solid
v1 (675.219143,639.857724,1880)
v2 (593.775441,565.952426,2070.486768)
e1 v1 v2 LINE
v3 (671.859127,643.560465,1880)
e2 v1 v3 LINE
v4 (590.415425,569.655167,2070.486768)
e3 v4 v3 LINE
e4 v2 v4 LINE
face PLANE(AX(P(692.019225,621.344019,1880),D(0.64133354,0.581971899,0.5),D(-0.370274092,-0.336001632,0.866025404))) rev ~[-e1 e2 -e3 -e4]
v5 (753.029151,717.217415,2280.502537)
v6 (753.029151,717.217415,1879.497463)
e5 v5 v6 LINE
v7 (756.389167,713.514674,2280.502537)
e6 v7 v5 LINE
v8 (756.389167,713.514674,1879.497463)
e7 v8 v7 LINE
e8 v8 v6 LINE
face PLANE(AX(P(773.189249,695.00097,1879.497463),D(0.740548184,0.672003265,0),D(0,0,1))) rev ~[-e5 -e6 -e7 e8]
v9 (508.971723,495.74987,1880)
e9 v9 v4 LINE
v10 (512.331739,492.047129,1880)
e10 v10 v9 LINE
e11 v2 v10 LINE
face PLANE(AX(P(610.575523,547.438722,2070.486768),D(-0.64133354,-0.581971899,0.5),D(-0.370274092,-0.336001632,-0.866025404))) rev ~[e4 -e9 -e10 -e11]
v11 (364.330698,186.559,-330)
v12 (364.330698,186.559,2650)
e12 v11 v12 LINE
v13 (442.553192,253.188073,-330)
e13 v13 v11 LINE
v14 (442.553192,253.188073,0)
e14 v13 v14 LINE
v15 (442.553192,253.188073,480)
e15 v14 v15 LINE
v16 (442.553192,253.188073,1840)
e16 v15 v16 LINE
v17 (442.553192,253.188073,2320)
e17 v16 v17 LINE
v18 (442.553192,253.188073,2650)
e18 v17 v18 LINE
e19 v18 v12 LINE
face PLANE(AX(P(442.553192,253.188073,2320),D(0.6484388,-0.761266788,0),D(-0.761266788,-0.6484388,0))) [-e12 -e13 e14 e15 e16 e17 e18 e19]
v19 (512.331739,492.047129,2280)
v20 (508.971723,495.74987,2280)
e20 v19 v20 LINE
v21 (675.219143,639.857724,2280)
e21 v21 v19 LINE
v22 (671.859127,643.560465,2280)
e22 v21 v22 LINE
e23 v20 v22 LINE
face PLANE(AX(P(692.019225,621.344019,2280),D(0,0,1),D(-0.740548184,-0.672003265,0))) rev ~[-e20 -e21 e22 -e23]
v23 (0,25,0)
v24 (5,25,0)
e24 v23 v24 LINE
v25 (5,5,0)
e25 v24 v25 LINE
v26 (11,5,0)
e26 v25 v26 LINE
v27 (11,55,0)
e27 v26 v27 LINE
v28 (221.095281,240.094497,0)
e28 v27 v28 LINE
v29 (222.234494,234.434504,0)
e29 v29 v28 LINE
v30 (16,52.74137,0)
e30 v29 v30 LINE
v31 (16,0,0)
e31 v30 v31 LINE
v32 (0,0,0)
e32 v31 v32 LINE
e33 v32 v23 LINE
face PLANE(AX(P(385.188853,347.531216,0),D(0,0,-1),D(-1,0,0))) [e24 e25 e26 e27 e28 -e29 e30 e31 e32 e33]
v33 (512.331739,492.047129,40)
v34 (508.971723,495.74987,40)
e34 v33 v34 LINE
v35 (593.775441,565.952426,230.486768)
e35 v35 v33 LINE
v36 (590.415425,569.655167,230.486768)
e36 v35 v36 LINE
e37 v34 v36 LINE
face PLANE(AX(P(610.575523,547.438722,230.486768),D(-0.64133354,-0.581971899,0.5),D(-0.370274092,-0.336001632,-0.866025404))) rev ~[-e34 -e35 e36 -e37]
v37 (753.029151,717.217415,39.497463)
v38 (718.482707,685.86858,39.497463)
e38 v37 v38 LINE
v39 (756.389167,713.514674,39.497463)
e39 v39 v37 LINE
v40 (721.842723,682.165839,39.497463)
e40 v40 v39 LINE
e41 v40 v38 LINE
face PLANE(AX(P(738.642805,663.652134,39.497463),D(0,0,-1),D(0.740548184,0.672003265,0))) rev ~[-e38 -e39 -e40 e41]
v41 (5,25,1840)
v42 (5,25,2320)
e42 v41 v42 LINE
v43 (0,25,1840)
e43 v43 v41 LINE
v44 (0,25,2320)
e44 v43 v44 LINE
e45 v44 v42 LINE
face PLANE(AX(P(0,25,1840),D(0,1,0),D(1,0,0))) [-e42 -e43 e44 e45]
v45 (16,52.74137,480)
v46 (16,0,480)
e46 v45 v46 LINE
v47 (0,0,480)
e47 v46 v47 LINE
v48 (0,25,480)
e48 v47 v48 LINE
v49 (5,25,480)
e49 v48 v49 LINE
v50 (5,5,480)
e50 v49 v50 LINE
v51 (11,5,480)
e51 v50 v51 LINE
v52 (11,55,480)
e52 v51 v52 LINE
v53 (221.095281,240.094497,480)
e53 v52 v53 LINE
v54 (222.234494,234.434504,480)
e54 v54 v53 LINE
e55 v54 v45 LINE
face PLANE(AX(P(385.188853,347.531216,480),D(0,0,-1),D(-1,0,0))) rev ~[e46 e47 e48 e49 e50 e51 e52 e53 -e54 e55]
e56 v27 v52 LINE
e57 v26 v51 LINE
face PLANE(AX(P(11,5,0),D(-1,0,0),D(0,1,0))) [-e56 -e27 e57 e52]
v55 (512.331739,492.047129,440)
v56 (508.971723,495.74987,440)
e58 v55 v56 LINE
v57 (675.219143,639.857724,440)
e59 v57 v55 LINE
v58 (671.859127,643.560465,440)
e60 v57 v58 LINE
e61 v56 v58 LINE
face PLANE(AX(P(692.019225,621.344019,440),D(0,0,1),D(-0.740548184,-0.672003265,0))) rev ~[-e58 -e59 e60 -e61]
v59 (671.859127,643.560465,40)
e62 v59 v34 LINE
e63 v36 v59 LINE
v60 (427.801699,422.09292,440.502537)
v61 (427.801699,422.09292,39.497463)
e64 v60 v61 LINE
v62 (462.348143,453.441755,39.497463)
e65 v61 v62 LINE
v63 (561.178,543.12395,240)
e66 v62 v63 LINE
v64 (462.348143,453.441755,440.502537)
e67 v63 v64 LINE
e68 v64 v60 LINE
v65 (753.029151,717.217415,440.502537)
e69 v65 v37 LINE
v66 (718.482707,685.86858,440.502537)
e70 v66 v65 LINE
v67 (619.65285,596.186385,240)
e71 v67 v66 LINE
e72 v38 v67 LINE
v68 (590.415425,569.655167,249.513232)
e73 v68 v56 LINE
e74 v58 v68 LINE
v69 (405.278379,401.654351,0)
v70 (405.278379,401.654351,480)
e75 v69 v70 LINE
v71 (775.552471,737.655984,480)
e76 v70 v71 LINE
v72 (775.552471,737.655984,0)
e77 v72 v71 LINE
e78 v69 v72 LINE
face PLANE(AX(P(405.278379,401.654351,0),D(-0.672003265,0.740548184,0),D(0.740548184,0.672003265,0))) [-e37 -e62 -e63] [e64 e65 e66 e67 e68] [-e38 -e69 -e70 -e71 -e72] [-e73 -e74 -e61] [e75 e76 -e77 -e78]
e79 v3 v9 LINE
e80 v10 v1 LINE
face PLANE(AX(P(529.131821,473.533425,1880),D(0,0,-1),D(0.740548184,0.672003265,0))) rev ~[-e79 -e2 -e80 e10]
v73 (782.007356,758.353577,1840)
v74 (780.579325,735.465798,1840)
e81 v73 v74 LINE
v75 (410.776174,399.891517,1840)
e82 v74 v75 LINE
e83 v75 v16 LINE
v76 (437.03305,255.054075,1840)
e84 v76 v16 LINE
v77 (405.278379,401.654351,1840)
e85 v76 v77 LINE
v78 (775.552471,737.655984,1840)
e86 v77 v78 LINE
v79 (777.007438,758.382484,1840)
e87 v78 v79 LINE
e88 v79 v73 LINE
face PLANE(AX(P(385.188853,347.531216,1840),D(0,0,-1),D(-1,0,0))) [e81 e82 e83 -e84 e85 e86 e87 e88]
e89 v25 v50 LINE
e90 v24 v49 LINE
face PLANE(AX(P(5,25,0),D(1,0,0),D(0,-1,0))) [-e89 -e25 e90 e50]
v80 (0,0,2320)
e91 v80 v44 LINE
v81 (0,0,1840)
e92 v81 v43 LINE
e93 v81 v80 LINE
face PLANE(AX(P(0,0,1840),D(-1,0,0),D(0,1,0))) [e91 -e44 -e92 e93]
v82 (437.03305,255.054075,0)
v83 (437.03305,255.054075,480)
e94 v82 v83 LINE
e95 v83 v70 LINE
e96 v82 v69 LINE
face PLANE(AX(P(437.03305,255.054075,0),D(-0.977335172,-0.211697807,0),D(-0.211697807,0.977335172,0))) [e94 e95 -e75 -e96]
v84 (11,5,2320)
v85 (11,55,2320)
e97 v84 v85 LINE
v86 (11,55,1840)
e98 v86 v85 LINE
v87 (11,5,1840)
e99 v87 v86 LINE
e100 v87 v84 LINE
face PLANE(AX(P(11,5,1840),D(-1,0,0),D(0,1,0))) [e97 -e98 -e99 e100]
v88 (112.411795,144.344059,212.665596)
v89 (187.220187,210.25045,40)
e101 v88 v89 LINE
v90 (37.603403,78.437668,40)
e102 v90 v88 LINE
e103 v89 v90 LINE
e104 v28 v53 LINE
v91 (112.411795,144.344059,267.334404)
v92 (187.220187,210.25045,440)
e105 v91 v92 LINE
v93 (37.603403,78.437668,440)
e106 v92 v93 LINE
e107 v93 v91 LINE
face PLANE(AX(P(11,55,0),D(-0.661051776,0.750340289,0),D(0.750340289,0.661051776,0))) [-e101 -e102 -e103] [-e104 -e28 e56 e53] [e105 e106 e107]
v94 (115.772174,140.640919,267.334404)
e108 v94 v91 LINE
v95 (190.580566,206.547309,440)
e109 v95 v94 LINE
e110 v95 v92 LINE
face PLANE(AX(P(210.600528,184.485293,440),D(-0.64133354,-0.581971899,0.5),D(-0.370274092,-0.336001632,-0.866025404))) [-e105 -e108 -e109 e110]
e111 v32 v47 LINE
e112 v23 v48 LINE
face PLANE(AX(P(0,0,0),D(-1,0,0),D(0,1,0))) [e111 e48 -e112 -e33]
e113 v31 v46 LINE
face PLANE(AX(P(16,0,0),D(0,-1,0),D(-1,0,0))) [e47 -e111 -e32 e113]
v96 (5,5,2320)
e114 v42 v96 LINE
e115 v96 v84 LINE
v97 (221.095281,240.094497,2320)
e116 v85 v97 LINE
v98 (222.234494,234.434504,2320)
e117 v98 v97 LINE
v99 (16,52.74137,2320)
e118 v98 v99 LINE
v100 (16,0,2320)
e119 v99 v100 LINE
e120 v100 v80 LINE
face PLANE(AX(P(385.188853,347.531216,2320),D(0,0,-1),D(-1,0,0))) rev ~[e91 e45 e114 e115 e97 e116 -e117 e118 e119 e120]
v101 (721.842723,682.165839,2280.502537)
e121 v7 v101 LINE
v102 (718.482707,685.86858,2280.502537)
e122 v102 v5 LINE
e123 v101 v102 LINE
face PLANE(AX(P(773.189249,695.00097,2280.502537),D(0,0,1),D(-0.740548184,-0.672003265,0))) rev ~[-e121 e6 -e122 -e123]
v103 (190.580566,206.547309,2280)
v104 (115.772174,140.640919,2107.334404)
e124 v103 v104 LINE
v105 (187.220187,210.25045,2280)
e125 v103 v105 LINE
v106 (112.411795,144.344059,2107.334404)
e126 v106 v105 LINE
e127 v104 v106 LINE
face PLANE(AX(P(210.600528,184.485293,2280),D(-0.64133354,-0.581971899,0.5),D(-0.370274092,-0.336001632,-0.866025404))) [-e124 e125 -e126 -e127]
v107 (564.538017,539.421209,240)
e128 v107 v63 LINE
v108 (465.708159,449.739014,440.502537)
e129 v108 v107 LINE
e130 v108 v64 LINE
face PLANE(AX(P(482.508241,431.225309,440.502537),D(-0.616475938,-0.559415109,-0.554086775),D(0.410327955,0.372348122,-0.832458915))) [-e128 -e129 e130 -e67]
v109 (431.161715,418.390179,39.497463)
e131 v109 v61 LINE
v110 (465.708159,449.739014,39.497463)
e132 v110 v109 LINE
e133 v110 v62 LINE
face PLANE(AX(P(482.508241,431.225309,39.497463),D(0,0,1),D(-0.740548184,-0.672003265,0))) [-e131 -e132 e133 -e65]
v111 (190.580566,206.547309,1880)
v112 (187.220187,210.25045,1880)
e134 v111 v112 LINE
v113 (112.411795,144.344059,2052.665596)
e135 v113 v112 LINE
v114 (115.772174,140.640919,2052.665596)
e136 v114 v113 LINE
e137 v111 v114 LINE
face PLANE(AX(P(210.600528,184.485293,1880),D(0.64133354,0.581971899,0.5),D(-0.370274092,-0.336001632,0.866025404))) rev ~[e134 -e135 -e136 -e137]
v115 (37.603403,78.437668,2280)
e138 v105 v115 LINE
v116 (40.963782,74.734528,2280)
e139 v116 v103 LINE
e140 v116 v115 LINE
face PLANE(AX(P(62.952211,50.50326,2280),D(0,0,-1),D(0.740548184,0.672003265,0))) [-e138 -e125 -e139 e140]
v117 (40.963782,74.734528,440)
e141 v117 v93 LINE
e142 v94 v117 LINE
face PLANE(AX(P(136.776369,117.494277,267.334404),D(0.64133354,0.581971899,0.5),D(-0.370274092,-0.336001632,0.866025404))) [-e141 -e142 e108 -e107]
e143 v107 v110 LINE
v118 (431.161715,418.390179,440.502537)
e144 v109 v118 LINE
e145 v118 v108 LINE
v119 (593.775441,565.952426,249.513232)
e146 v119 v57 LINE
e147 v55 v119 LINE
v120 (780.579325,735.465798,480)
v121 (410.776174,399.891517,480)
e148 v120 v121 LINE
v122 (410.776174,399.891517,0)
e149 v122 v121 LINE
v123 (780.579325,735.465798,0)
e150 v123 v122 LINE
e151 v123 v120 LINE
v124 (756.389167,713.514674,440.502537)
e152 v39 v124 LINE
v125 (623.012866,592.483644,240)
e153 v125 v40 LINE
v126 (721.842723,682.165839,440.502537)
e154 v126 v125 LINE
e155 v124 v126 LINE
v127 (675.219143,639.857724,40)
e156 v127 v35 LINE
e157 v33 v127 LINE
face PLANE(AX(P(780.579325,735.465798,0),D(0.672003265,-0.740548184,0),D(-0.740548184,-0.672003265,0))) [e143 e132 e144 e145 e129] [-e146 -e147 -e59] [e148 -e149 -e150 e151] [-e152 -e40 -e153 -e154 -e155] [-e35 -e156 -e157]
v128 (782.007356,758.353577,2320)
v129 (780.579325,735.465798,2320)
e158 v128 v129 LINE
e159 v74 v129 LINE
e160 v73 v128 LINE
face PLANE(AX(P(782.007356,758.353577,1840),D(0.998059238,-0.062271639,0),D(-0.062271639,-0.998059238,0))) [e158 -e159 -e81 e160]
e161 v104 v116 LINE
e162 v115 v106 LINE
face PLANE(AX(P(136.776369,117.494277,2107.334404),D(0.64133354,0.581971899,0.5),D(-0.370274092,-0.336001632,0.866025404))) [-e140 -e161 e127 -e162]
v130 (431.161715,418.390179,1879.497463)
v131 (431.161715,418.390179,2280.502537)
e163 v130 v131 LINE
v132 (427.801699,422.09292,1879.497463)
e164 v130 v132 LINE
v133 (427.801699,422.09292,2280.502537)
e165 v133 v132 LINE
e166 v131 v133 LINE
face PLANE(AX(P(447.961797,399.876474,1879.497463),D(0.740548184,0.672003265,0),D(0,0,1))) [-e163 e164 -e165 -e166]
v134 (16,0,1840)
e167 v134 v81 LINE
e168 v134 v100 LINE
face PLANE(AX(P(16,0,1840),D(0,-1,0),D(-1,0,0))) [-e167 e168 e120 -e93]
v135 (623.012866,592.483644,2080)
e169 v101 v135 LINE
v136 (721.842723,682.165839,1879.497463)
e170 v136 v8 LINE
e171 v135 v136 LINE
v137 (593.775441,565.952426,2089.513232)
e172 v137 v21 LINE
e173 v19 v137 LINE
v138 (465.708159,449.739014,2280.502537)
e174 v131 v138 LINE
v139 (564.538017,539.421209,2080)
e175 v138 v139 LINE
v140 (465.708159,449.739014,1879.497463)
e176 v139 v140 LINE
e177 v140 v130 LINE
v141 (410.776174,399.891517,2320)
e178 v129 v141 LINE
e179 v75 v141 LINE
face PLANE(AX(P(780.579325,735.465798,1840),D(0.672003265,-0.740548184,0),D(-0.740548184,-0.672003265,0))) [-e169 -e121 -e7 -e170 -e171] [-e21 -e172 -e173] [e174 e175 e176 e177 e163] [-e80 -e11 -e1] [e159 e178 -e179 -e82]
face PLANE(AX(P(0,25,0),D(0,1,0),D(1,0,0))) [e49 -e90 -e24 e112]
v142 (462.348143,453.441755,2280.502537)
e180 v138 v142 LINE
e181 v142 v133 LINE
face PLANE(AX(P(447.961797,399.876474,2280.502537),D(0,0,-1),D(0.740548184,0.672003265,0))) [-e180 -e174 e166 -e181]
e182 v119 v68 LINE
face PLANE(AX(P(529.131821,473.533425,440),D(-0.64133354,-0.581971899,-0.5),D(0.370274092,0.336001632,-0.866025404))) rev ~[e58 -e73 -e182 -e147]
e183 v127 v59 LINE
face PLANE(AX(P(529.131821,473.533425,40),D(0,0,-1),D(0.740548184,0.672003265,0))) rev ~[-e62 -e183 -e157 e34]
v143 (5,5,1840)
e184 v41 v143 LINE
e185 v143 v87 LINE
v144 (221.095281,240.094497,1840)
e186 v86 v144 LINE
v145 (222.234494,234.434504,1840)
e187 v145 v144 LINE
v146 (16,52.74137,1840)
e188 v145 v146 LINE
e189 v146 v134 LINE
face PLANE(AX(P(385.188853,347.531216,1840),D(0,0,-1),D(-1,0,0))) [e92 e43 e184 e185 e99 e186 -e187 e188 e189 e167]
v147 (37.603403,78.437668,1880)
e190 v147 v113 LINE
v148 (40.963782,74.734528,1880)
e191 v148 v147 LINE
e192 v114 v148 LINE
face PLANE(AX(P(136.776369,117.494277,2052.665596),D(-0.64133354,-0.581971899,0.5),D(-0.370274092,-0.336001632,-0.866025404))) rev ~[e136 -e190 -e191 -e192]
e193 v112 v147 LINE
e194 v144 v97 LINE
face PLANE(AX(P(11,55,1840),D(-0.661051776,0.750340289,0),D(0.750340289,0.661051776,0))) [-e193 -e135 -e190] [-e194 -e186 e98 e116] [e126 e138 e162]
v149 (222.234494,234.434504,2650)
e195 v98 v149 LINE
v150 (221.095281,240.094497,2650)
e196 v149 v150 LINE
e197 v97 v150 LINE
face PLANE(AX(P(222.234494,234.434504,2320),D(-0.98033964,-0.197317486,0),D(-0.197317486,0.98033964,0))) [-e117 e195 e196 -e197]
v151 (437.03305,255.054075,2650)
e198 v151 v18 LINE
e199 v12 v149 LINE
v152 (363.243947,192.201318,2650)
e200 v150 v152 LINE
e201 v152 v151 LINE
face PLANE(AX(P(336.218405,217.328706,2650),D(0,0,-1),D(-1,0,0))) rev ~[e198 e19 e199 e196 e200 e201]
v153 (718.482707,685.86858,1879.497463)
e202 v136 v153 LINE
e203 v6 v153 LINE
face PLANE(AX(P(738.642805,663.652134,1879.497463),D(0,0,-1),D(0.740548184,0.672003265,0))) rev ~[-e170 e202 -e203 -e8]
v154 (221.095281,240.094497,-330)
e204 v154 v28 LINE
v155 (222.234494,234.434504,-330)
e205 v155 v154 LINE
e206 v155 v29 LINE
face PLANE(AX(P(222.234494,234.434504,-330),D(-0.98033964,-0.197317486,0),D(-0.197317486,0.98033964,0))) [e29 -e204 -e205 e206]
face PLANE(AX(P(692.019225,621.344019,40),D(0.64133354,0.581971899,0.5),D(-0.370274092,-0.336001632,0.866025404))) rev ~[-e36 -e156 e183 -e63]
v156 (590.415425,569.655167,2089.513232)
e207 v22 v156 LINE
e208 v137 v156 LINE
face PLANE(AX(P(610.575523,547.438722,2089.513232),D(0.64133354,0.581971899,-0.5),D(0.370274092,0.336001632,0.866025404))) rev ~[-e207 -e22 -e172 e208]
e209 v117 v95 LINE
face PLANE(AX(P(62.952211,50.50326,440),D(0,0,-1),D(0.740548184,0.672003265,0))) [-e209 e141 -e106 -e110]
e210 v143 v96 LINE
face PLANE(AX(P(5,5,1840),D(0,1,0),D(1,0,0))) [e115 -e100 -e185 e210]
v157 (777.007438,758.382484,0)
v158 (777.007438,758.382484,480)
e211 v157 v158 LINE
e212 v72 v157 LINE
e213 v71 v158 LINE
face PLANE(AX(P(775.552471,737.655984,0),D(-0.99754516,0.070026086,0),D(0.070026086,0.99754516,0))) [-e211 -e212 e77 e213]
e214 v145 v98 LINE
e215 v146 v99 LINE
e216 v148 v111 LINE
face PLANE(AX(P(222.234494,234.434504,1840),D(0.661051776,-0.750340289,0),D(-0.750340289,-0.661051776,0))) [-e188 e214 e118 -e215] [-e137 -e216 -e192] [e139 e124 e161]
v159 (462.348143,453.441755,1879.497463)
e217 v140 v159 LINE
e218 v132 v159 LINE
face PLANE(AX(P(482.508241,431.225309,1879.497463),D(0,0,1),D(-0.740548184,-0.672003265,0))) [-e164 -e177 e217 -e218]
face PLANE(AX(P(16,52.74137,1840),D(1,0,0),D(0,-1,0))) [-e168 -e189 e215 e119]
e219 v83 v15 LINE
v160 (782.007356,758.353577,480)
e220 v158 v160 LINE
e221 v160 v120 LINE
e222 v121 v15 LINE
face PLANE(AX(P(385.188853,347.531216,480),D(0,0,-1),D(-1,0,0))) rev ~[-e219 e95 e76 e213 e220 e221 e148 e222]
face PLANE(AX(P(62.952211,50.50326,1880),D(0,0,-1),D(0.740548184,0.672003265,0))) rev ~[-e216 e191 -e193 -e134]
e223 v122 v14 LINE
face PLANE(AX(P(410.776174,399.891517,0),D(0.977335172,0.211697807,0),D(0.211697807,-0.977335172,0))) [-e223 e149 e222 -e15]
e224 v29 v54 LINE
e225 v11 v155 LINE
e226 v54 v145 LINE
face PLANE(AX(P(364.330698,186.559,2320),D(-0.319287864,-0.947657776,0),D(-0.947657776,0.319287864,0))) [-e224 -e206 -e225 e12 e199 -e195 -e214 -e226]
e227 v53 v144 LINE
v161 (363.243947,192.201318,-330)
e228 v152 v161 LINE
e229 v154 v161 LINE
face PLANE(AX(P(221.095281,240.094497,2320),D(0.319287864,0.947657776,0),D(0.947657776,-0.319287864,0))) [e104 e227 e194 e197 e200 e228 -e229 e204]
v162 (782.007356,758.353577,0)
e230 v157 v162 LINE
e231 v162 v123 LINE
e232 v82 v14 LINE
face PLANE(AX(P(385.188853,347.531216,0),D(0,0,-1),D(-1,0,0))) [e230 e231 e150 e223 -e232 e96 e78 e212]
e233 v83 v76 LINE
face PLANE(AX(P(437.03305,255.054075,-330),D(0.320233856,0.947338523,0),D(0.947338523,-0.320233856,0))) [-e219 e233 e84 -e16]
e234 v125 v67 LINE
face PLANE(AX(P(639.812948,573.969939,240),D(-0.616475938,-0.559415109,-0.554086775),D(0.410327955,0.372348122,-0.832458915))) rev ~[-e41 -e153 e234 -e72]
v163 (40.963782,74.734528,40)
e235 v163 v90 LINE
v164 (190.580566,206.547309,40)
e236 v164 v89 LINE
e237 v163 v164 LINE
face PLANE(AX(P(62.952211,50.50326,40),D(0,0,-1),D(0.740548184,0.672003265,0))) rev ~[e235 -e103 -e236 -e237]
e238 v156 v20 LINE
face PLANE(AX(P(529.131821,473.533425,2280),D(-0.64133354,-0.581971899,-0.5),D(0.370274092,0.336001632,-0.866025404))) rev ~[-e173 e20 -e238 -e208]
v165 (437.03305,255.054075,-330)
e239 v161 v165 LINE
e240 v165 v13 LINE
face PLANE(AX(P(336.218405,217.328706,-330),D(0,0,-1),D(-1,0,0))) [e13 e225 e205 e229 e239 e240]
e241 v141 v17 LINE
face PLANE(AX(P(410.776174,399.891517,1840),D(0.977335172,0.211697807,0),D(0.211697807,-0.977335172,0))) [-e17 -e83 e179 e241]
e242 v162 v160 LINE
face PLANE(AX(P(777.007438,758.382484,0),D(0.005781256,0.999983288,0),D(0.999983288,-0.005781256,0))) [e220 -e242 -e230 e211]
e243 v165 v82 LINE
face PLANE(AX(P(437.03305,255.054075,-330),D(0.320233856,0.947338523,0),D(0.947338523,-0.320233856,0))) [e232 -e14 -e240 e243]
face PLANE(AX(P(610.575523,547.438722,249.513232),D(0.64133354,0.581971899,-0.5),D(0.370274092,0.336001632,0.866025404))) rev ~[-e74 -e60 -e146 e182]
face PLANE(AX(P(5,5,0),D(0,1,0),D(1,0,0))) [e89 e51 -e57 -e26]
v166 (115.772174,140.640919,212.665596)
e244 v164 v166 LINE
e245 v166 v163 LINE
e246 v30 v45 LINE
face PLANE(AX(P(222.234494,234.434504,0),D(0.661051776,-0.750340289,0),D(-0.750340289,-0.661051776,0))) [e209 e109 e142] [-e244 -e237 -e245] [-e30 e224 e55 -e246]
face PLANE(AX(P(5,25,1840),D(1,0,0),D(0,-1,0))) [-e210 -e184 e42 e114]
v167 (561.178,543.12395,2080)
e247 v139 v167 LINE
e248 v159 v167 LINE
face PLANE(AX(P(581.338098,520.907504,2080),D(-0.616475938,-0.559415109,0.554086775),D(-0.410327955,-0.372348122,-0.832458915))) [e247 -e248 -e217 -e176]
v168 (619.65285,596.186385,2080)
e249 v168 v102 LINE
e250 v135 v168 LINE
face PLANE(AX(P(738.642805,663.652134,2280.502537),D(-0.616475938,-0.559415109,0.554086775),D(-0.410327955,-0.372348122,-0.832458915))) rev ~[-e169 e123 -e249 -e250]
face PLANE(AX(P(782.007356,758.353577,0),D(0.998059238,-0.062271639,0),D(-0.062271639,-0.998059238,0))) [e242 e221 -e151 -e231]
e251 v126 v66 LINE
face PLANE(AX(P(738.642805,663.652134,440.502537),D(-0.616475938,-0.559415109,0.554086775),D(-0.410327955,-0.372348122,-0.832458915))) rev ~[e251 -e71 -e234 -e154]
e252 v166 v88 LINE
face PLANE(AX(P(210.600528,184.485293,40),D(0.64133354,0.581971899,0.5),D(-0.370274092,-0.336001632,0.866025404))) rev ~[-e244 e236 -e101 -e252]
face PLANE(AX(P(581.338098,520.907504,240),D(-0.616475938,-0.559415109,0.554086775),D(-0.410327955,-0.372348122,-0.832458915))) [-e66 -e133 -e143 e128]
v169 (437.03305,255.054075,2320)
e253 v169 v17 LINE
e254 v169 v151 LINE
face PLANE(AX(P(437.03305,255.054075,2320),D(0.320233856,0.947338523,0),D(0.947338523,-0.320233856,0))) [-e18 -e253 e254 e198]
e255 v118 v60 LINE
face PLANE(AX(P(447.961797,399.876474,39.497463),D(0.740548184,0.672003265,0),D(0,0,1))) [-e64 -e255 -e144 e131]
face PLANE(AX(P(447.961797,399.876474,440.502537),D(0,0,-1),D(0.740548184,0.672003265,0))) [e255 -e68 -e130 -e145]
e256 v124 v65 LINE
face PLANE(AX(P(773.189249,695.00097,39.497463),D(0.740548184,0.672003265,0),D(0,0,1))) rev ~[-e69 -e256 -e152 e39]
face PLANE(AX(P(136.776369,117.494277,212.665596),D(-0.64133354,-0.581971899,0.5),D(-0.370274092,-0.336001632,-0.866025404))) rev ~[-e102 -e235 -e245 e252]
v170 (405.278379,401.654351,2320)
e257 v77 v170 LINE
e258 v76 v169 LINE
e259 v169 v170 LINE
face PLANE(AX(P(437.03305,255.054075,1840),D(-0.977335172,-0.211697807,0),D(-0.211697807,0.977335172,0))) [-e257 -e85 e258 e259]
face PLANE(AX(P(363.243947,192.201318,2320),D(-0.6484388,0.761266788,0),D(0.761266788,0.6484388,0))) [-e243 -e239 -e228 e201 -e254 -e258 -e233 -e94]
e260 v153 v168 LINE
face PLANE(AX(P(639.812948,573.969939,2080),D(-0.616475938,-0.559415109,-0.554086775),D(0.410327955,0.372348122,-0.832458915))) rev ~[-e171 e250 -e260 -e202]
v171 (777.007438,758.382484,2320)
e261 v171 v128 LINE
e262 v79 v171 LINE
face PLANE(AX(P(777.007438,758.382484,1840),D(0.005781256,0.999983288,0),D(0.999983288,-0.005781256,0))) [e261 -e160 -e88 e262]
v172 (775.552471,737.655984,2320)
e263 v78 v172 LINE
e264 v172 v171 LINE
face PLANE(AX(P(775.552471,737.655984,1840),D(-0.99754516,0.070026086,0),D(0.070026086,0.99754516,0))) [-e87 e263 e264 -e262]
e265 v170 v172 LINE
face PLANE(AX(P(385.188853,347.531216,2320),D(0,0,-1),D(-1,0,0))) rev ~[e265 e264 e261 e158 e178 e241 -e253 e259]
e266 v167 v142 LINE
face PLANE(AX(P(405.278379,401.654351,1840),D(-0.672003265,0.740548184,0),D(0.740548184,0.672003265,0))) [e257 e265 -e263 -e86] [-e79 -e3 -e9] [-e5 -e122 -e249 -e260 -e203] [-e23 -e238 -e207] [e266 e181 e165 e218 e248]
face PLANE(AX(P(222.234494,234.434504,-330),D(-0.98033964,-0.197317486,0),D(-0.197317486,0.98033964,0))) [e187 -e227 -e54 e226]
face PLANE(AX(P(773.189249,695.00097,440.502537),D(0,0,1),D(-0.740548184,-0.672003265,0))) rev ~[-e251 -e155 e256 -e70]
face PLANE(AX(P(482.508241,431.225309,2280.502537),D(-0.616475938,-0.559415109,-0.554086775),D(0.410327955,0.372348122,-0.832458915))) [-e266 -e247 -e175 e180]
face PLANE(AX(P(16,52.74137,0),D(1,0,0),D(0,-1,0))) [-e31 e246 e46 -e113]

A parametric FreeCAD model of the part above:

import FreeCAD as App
import Part
import Sketcher

V = App.Vector
Q = App.Units.Quantity

doc = App.newDocument("Part")
body = doc.addObject("PartDesign::Body", "Body")

sketch1 = body.newObject("Sketcher::SketchObject", "Sketch")
sketch1.AttachmentSupport = (doc.getObject("XY_Plane"), [""])
sketch1.MapMode = "FlatFace"
sketch1.addGeometry([
    Part.LineSegment(V(11, 55, 0), V(11, 5, 0)),
    Part.LineSegment(V(11, 5, 0), V(5, 5, 0)),
    Part.LineSegment(V(5, 5, 0), V(5, 25, 0)),
    Part.LineSegment(V(5, 25, 0), V(0, 25, 0)),
    Part.LineSegment(V(0, 25, 0), V(0, 0, 0)),
    Part.LineSegment(V(0, 0, 0), V(16, 0, 0)),
    Part.LineSegment(V(16, 0, 0), V(16, 52.74137, 0)),
    Part.LineSegment(V(16, 52.74137, 0), V(222.234494, 234.434504, 0)),
    Part.LineSegment(V(222.234494, 234.434504, 0), V(364.330698, 186.559, 0)),
    Part.LineSegment(V(364.330698, 186.559, 0), V(442.553192, 253.188073, 0)),
    Part.LineSegment(V(442.553192, 253.188073, 0), V(410.776174, 399.891517, 0)),
    Part.LineSegment(V(410.776174, 399.891517, 0), V(780.579325, 735.465798, 0)),
    Part.LineSegment(V(780.579325, 735.465798, 0), V(782.007356, 758.353577, 0)),
    Part.LineSegment(V(782.007356, 758.353577, 0), V(777.007438, 758.382484, 0)),
    Part.LineSegment(V(777.007438, 758.382484, 0), V(775.552471, 737.655984, 0)),
    Part.LineSegment(V(775.552471, 737.655984, 0), V(405.278379, 401.654351, 0)),
    Part.LineSegment(V(405.278379, 401.654351, 0), V(437.03305, 255.054075, 0)),
    Part.LineSegment(V(437.03305, 255.054075, 0), V(363.243947, 192.201318, 0)),
    Part.LineSegment(V(363.243947, 192.201318, 0), V(221.095281, 240.094497, 0)),
    Part.LineSegment(V(221.095281, 240.094497, 0), V(11, 55, 0)),
], False)
sketch1.addConstraint([
    Sketcher.Constraint("Coincident", 0, 2, 1, 1),
    Sketcher.Constraint("Coincident", 1, 2, 2, 1),
    Sketcher.Constraint("Coincident", 2, 2, 3, 1),
    Sketcher.Constraint("Coincident", 3, 2, 4, 1),
    Sketcher.Constraint("Coincident", 4, 2, 5, 1),
    Sketcher.Constraint("Coincident", 5, 2, 6, 1),
    Sketcher.Constraint("Coincident", 6, 2, 7, 1),
    Sketcher.Constraint("Coincident", 7, 2, 8, 1),
    Sketcher.Constraint("Coincident", 8, 2, 9, 1),
    Sketcher.Constraint("Coincident", 9, 2, 10, 1),
    Sketcher.Constraint("Coincident", 10, 2, 11, 1),
    Sketcher.Constraint("Coincident", 11, 2, 12, 1),
    Sketcher.Constraint("Coincident", 12, 2, 13, 1),
    Sketcher.Constraint("Coincident", 13, 2, 14, 1),
    Sketcher.Constraint("Coincident", 14, 2, 15, 1),
    Sketcher.Constraint("Coincident", 15, 2, 16, 1),
    Sketcher.Constraint("Coincident", 16, 2, 17, 1),
    Sketcher.Constraint("Coincident", 17, 2, 18, 1),
    Sketcher.Constraint("Coincident", 18, 2, 19, 1),
    Sketcher.Constraint("Coincident", 19, 2, 0, 1),
    Sketcher.Constraint("Vertical", 0),
    Sketcher.Constraint("Horizontal", 1),
    Sketcher.Constraint("Vertical", 2),
    Sketcher.Constraint("Horizontal", 3),
    Sketcher.Constraint("Vertical", 4),
    Sketcher.Constraint("Horizontal", 5),
    Sketcher.Constraint("Vertical", 6),
    Sketcher.Constraint("Coincident", 4, 2, -1, 1),
    Sketcher.Constraint("DistanceX", 1, 2, 1, 1, 6.0),
    Sketcher.Constraint("DistanceX", 3, 2, 3, 1, 5.0),
    Sketcher.Constraint("DistanceX", 5, 1, 5, 2, 16.0),
    Sketcher.Constraint("DistanceY", 0, 2, 0, 1, 50.0),
    Sketcher.Constraint("DistanceY", 2, 1, 2, 2, 20.0),
    Sketcher.Constraint("DistanceY", 4, 2, 4, 1, 25.0),
    Sketcher.Constraint("Distance", 13, 5.000001),
    Sketcher.Constraint("Distance", 15, 500.0),
    Sketcher.Constraint("Distance", 16, 150.0),
    Sketcher.Constraint("Distance", 18, 150.0),
    Sketcher.Constraint("Distance", 19, 280.0),
    Sketcher.Constraint("DistanceY", -1, 1, 8, 2, 186.559),
    Sketcher.Constraint("DistanceY", 6, 1, 6, 2, 52.74137),
    Sketcher.Constraint("DistanceY", -1, 1, 11, 2, 735.465798),
    Sketcher.Constraint("DistanceY", 14, 2, 13, 2, 20.7265),
    Sketcher.Constraint("DistanceY", 17, 2, 10, 2, 207.690199),
    Sketcher.Constraint("Distance", 7, 274.854619),
    Sketcher.Constraint("Distance", 8, 149.944639),
    Sketcher.Constraint("Distance", 10, 150.105561),
    Sketcher.Constraint("Distance", 17, 96.92936),
    Sketcher.Constraint("DistanceX", -1, 1, 9, 2, 442.553192),
    Sketcher.Constraint("DistanceX", -1, 1, 13, 2, 777.007438),
    Sketcher.Constraint("DistanceX", -1, 1, 14, 2, 775.552471),
    Sketcher.Constraint("DistanceX", -1, 1, 15, 2, 405.278379),
    Sketcher.Constraint("DistanceY", -1, 1, 15, 2, 401.654351),
    Sketcher.Constraint("DistanceX", -1, 1, 16, 2, 437.03305),
    Sketcher.Constraint("DistanceX", -1, 1, 18, 2, 221.095281),
    Sketcher.Constraint("DistanceY", 7, 2, 9, 2, 18.753569),
    Sketcher.Constraint("DistanceX", 7, 2, 10, 2, 188.54168),
    Sketcher.Constraint("DistanceX", 10, 2, 11, 2, 369.803151),
    Sketcher.Constraint("DistanceX", 11, 2, 12, 2, 1.428031),
])
pad1 = body.newObject("PartDesign::Pad", "Pad")
pad1.Profile = sketch1
pad1.Length = 480

sketch2 = body.newObject("Sketcher::SketchObject", "Sketch001")
sketch2.AttachmentSupport = (doc.getObject("XY_Plane"), [""])
sketch2.MapMode = "FlatFace"
sketch2.AttachmentOffset = App.Placement(V(0, 0, 480), App.Rotation())
sketch2.addGeometry([
    Part.LineSegment(V(363, 192, 0), V(221, 240, 0)),
    Part.LineSegment(V(221, 240, 0), V(222, 234, 0)),
    Part.LineSegment(V(222, 234, 0), V(364, 187, 0)),
    Part.LineSegment(V(364, 187, 0), V(443, 253, 0)),
    Part.LineSegment(V(443, 253, 0), V(437, 255, 0)),
    Part.LineSegment(V(437, 255, 0), V(363, 192, 0)),
], False)
sketch2.addConstraint([
    Sketcher.Constraint("Coincident", 0, 2, 1, 1),
    Sketcher.Constraint("Coincident", 1, 2, 2, 1),
    Sketcher.Constraint("Coincident", 2, 2, 3, 1),
    Sketcher.Constraint("Coincident", 3, 2, 4, 1),
    Sketcher.Constraint("Coincident", 4, 2, 5, 1),
    Sketcher.Constraint("Coincident", 5, 2, 0, 1),
    Sketcher.Constraint("Parallel", 0, 2),
    Sketcher.Constraint("Parallel", 3, 5),
    Sketcher.Constraint("Distance", 0, 150.0),
    Sketcher.Constraint("Distance", 4, 5.827),
    Sketcher.Constraint("DistanceY", -1, 1, 2, 2, 186.559),
    Sketcher.Constraint("Distance", 2, 149.944639),
    Sketcher.Constraint("Distance", 5, 96.92936),
    Sketcher.Constraint("DistanceX", -1, 1, 0, 2, 221.095281),
    Sketcher.Constraint("DistanceX", -1, 1, 3, 2, 442.553192),
    Sketcher.Constraint("DistanceX", -1, 1, 4, 2, 437.03305),
    Sketcher.Constraint("DistanceY", 1, 2, 3, 2, 18.753569),
    Sketcher.Constraint("DistanceY", 0, 2, 4, 2, 14.959578),
])
pad2 = body.newObject("PartDesign::Pad", "Pad001")
pad2.Profile = sketch2
pad2.Type = "TwoLengths"
pad2.Length = 1360
pad2.Length2 = 810

sketch3 = body.newObject("Sketcher::SketchObject", "Sketch002")
sketch3.AttachmentSupport = (doc.getObject("XY_Plane"), [""])
sketch3.MapMode = "FlatFace"
sketch3.AttachmentOffset = App.Placement(V(0, 0, 1840), App.Rotation())
sketch3.addGeometry([
    Part.LineSegment(V(5, 25, 0), V(0, 25, 0)),
    Part.LineSegment(V(0, 25, 0), V(0, 0, 0)),
    Part.LineSegment(V(0, 0, 0), V(16, 0, 0)),
    Part.LineSegment(V(16, 0, 0), V(16, 52.74137, 0)),
    Part.LineSegment(V(16, 52.74137, 0), V(222.234494, 234.434504, 0)),
    Part.LineSegment(V(222.234494, 234.434504, 0), V(364.330698, 186.559, 0)),
    Part.LineSegment(V(364.330698, 186.559, 0), V(442.553192, 253.188073, 0)),
    Part.LineSegment(V(442.553192, 253.188073, 0), V(410.776174, 399.891517, 0)),
    Part.LineSegment(V(410.776174, 399.891517, 0), V(780.579325, 735.465798, 0)),
    Part.LineSegment(V(780.579325, 735.465798, 0), V(782.007356, 758.353577, 0)),
    Part.LineSegment(V(782.007356, 758.353577, 0), V(777.007438, 758.382484, 0)),
    Part.LineSegment(V(777.007438, 758.382484, 0), V(775.552471, 737.655984, 0)),
    Part.LineSegment(V(775.552471, 737.655984, 0), V(405.278379, 401.654351, 0)),
    Part.LineSegment(V(405.278379, 401.654351, 0), V(437.03305, 255.054075, 0)),
    Part.LineSegment(V(437.03305, 255.054075, 0), V(363.243947, 192.201318, 0)),
    Part.LineSegment(V(363.243947, 192.201318, 0), V(221.095281, 240.094497, 0)),
    Part.LineSegment(V(221.095281, 240.094497, 0), V(11, 55, 0)),
    Part.LineSegment(V(11, 55, 0), V(11, 5, 0)),
    Part.LineSegment(V(11, 5, 0), V(5, 5, 0)),
    Part.LineSegment(V(5, 5, 0), V(5, 25, 0)),
], False)
sketch3.addConstraint([
    Sketcher.Constraint("Coincident", 0, 2, 1, 1),
    Sketcher.Constraint("Coincident", 1, 2, 2, 1),
    Sketcher.Constraint("Coincident", 2, 2, 3, 1),
    Sketcher.Constraint("Coincident", 3, 2, 4, 1),
    Sketcher.Constraint("Coincident", 4, 2, 5, 1),
    Sketcher.Constraint("Coincident", 5, 2, 6, 1),
    Sketcher.Constraint("Coincident", 6, 2, 7, 1),
    Sketcher.Constraint("Coincident", 7, 2, 8, 1),
    Sketcher.Constraint("Coincident", 8, 2, 9, 1),
    Sketcher.Constraint("Coincident", 9, 2, 10, 1),
    Sketcher.Constraint("Coincident", 10, 2, 11, 1),
    Sketcher.Constraint("Coincident", 11, 2, 12, 1),
    Sketcher.Constraint("Coincident", 12, 2, 13, 1),
    Sketcher.Constraint("Coincident", 13, 2, 14, 1),
    Sketcher.Constraint("Coincident", 14, 2, 15, 1),
    Sketcher.Constraint("Coincident", 15, 2, 16, 1),
    Sketcher.Constraint("Coincident", 16, 2, 17, 1),
    Sketcher.Constraint("Coincident", 17, 2, 18, 1),
    Sketcher.Constraint("Coincident", 18, 2, 19, 1),
    Sketcher.Constraint("Coincident", 19, 2, 0, 1),
    Sketcher.Constraint("Horizontal", 0),
    Sketcher.Constraint("Vertical", 1),
    Sketcher.Constraint("Horizontal", 2),
    Sketcher.Constraint("Vertical", 3),
    Sketcher.Constraint("Vertical", 17),
    Sketcher.Constraint("Horizontal", 18),
    Sketcher.Constraint("Vertical", 19),
    Sketcher.Constraint("Coincident", 1, 2, -1, 1),
    Sketcher.Constraint("DistanceX", 0, 2, 0, 1, 5.0),
    Sketcher.Constraint("DistanceX", 2, 1, 2, 2, 16.0),
    Sketcher.Constraint("DistanceX", 18, 2, 18, 1, 6.0),
    Sketcher.Constraint("DistanceY", 1, 2, 1, 1, 25.0),
    Sketcher.Constraint("DistanceY", 17, 2, 17, 1, 50.0),
    Sketcher.Constraint("DistanceY", 19, 1, 19, 2, 20.0),
    Sketcher.Constraint("Distance", 10, 5.000001),
    Sketcher.Constraint("Distance", 12, 500.0),
    Sketcher.Constraint("Distance", 13, 150.0),
    Sketcher.Constraint("Distance", 15, 150.0),
    Sketcher.Constraint("Distance", 16, 280.0),
    Sketcher.Constraint("DistanceY", -1, 1, 5, 2, 186.559),
    Sketcher.Constraint("DistanceY", 3, 1, 3, 2, 52.74137),
    Sketcher.Constraint("DistanceY", -1, 1, 8, 2, 735.465798),
    Sketcher.Constraint("DistanceY", 11, 2, 10, 2, 20.7265),
    Sketcher.Constraint("DistanceY", 14, 2, 7, 2, 207.690199),
    Sketcher.Constraint("Distance", 4, 274.854619),
    Sketcher.Constraint("Distance", 5, 149.944639),
    Sketcher.Constraint("Distance", 7, 150.105561),
    Sketcher.Constraint("Distance", 14, 96.92936),
    Sketcher.Constraint("DistanceX", -1, 1, 6, 2, 442.553192),
    Sketcher.Constraint("DistanceX", -1, 1, 10, 2, 777.007438),
    Sketcher.Constraint("DistanceX", -1, 1, 11, 2, 775.552471),
    Sketcher.Constraint("DistanceX", -1, 1, 12, 2, 405.278379),
    Sketcher.Constraint("DistanceY", -1, 1, 12, 2, 401.654351),
    Sketcher.Constraint("DistanceX", -1, 1, 13, 2, 437.03305),
    Sketcher.Constraint("DistanceX", -1, 1, 15, 2, 221.095281),
    Sketcher.Constraint("DistanceY", 4, 2, 6, 2, 18.753569),
    Sketcher.Constraint("DistanceX", 4, 2, 7, 2, 188.54168),
    Sketcher.Constraint("DistanceX", 7, 2, 8, 2, 369.803151),
    Sketcher.Constraint("DistanceX", 8, 2, 9, 2, 1.428031),
])
pad3 = body.newObject("PartDesign::Pad", "Pad002")
pad3.Profile = sketch3
pad3.Length = 480

sketch4 = body.newObject("Sketcher::SketchObject", "Sketch003")
sketch4.AttachmentSupport = (doc.getObject("XY_Plane"), [""])
sketch4.MapMode = "FlatFace"
sketch4.AttachmentOffset = App.Placement(V(0, 0, 2320), App.Rotation())
sketch4.addGeometry([
    Part.LineSegment(V(363, 192, 0), V(221, 240, 0)),
    Part.LineSegment(V(221, 240, 0), V(222, 234, 0)),
    Part.LineSegment(V(222, 234, 0), V(364, 187, 0)),
    Part.LineSegment(V(364, 187, 0), V(443, 253, 0)),
    Part.LineSegment(V(443, 253, 0), V(437, 255, 0)),
    Part.LineSegment(V(437, 255, 0), V(363, 192, 0)),
], False)
sketch4.addConstraint([
    Sketcher.Constraint("Coincident", 0, 2, 1, 1),
    Sketcher.Constraint("Coincident", 1, 2, 2, 1),
    Sketcher.Constraint("Coincident", 2, 2, 3, 1),
    Sketcher.Constraint("Coincident", 3, 2, 4, 1),
    Sketcher.Constraint("Coincident", 4, 2, 5, 1),
    Sketcher.Constraint("Coincident", 5, 2, 0, 1),
    Sketcher.Constraint("Parallel", 0, 2),
    Sketcher.Constraint("Parallel", 3, 5),
    Sketcher.Constraint("Distance", 0, 150.0),
    Sketcher.Constraint("Distance", 4, 5.827),
    Sketcher.Constraint("DistanceY", -1, 1, 2, 2, 186.559),
    Sketcher.Constraint("Distance", 2, 149.944639),
    Sketcher.Constraint("Distance", 5, 96.92936),
    Sketcher.Constraint("DistanceX", -1, 1, 0, 2, 221.095281),
    Sketcher.Constraint("DistanceX", -1, 1, 3, 2, 442.553192),
    Sketcher.Constraint("DistanceX", -1, 1, 4, 2, 437.03305),
    Sketcher.Constraint("DistanceY", 1, 2, 3, 2, 18.753569),
    Sketcher.Constraint("DistanceY", 0, 2, 4, 2, 14.959578),
])
pad4 = body.newObject("PartDesign::Pad", "Pad003")
pad4.Profile = sketch4
pad4.Length = 330

sketch5 = body.newObject("Sketcher::SketchObject", "Sketch004")
sketch5.Placement = App.Placement(V(-16.864598, 18.584802, 0), App.Rotation(V(0.740548184, 0.672003265, 0), V(0, 0, -1.000000001), V(-0.672003265, 0.740548184, 0), "ZXY"))
sketch5.addGeometry([
    Part.LineSegment(V(930, -40, 0), V(710, -40, 0)),
    Part.LineSegment(V(710, -40, 0), V(820, -230, 0)),
    Part.LineSegment(V(820, -230, 0), V(930, -40, 0)),
    Part.LineSegment(V(781, -240, 0), V(647, -39, 0)),
    Part.LineSegment(V(647, -39, 0), V(600, -39, 0)),
    Part.LineSegment(V(600, -39, 0), V(600, -441, 0)),
    Part.LineSegment(V(600, -441, 0), V(647, -441, 0)),
    Part.LineSegment(V(647, -441, 0), V(781, -240, 0)),
    Part.LineSegment(V(993, -39, 0), V(860, -240, 0)),
    Part.LineSegment(V(860, -240, 0), V(993, -441, 0)),
    Part.LineSegment(V(993, -441, 0), V(1040, -441, 0)),
    Part.LineSegment(V(1040, -441, 0), V(1040, -39, 0)),
    Part.LineSegment(V(1040, -39, 0), V(993, -39, 0)),
    Part.LineSegment(V(930, -440, 0), V(820, -250, 0)),
    Part.LineSegment(V(820, -250, 0), V(710, -440, 0)),
    Part.LineSegment(V(710, -440, 0), V(930, -440, 0)),
    Part.LineSegment(V(81, -440, 0), V(280, -440, 0)),
    Part.LineSegment(V(280, -440, 0), V(180, -267, 0)),
    Part.LineSegment(V(180, -267, 0), V(81, -440, 0)),
    Part.LineSegment(V(280, -40, 0), V(81, -40, 0)),
    Part.LineSegment(V(81, -40, 0), V(180, -213, 0)),
    Part.LineSegment(V(180, -213, 0), V(280, -40, 0)),
    Part.LineSegment(V(930, -1880, 0), V(710, -1880, 0)),
    Part.LineSegment(V(710, -1880, 0), V(820, -2070, 0)),
    Part.LineSegment(V(820, -2070, 0), V(930, -1880, 0)),
    Part.LineSegment(V(1040, -1879, 0), V(993, -1879, 0)),
    Part.LineSegment(V(993, -1879, 0), V(860, -2080, 0)),
    Part.LineSegment(V(860, -2080, 0), V(993, -2281, 0)),
    Part.LineSegment(V(993, -2281, 0), V(1040, -2281, 0)),
    Part.LineSegment(V(1040, -2281, 0), V(1040, -1879, 0)),
    Part.LineSegment(V(930, -2280, 0), V(820, -2090, 0)),
    Part.LineSegment(V(820, -2090, 0), V(710, -2280, 0)),
    Part.LineSegment(V(710, -2280, 0), V(930, -2280, 0)),
    Part.LineSegment(V(781, -2080, 0), V(647, -1879, 0)),
    Part.LineSegment(V(647, -1879, 0), V(600, -1879, 0)),
    Part.LineSegment(V(600, -1879, 0), V(600, -2281, 0)),
    Part.LineSegment(V(600, -2281, 0), V(647, -2281, 0)),
    Part.LineSegment(V(647, -2281, 0), V(781, -2080, 0)),
    Part.LineSegment(V(280, -1880, 0), V(81, -1880, 0)),
    Part.LineSegment(V(81, -1880, 0), V(180, -2053, 0)),
    Part.LineSegment(V(180, -2053, 0), V(280, -1880, 0)),
    Part.LineSegment(V(280, -2280, 0), V(180, -2107, 0)),
    Part.LineSegment(V(180, -2107, 0), V(81, -2280, 0)),
    Part.LineSegment(V(81, -2280, 0), V(280, -2280, 0)),
], False)
sketch5.addConstraint([
    Sketcher.Constraint("Coincident", 0, 2, 1, 1),
    Sketcher.Constraint("Coincident", 1, 2, 2, 1),
    Sketcher.Constraint("Coincident", 2, 2, 0, 1),
    Sketcher.Constraint("Coincident", 3, 2, 4, 1),
    Sketcher.Constraint("Coincident", 4, 2, 5, 1),
    Sketcher.Constraint("Coincident", 5, 2, 6, 1),
    Sketcher.Constraint("Coincident", 6, 2, 7, 1),
    Sketcher.Constraint("Coincident", 7, 2, 3, 1),
    Sketcher.Constraint("Coincident", 8, 2, 9, 1),
    Sketcher.Constraint("Coincident", 9, 2, 10, 1),
    Sketcher.Constraint("Coincident", 10, 2, 11, 1),
    Sketcher.Constraint("Coincident", 11, 2, 12, 1),
    Sketcher.Constraint("Coincident", 12, 2, 8, 1),
    Sketcher.Constraint("Coincident", 13, 2, 14, 1),
    Sketcher.Constraint("Coincident", 14, 2, 15, 1),
    Sketcher.Constraint("Coincident", 15, 2, 13, 1),
    Sketcher.Constraint("Coincident", 16, 2, 17, 1),
    Sketcher.Constraint("Coincident", 17, 2, 18, 1),
    Sketcher.Constraint("Coincident", 18, 2, 16, 1),
    Sketcher.Constraint("Coincident", 19, 2, 20, 1),
    Sketcher.Constraint("Coincident", 20, 2, 21, 1),
    Sketcher.Constraint("Coincident", 21, 2, 19, 1),
    Sketcher.Constraint("Coincident", 22, 2, 23, 1),
    Sketcher.Constraint("Coincident", 23, 2, 24, 1),
    Sketcher.Constraint("Coincident", 24, 2, 22, 1),
    Sketcher.Constraint("Coincident", 25, 2, 26, 1),
    Sketcher.Constraint("Coincident", 26, 2, 27, 1),
    Sketcher.Constraint("Coincident", 27, 2, 28, 1),
    Sketcher.Constraint("Coincident", 28, 2, 29, 1),
    Sketcher.Constraint("Coincident", 29, 2, 25, 1),
    Sketcher.Constraint("Coincident", 30, 2, 31, 1),
    Sketcher.Constraint("Coincident", 31, 2, 32, 1),
    Sketcher.Constraint("Coincident", 32, 2, 30, 1),
    Sketcher.Constraint("Coincident", 33, 2, 34, 1),
    Sketcher.Constraint("Coincident", 34, 2, 35, 1),
    Sketcher.Constraint("Coincident", 35, 2, 36, 1),
    Sketcher.Constraint("Coincident", 36, 2, 37, 1),
    Sketcher.Constraint("Coincident", 37, 2, 33, 1),
    Sketcher.Constraint("Coincident", 38, 2, 39, 1),
    Sketcher.Constraint("Coincident", 39, 2, 40, 1),
    Sketcher.Constraint("Coincident", 40, 2, 38, 1),
    Sketcher.Constraint("Coincident", 41, 2, 42, 1),
    Sketcher.Constraint("Coincident", 42, 2, 43, 1),
    Sketcher.Constraint("Coincident", 43, 2, 41, 1),
    Sketcher.Constraint("Horizontal", 0),
    Sketcher.Constraint("Horizontal", 4),
    Sketcher.Constraint("Vertical", 5),
    Sketcher.Constraint("Horizontal", 6),
    Sketcher.Constraint("Horizontal", 10),
    Sketcher.Constraint("Vertical", 11),
    Sketcher.Constraint("Horizontal", 12),
    Sketcher.Constraint("Horizontal", 15),
    Sketcher.Constraint("Horizontal", 16),
    Sketcher.Constraint("Horizontal", 19),
    Sketcher.Constraint("Horizontal", 22),
    Sketcher.Constraint("Horizontal", 25),
    Sketcher.Constraint("Horizontal", 28),
    Sketcher.Constraint("Vertical", 29),
    Sketcher.Constraint("Horizontal", 32),
    Sketcher.Constraint("Horizontal", 34),
    Sketcher.Constraint("Vertical", 35),
    Sketcher.Constraint("Horizontal", 36),
    Sketcher.Constraint("Horizontal", 38),
    Sketcher.Constraint("Horizontal", 43),
    Sketcher.Constraint("Parallel", 7, 8),
    Sketcher.Constraint("Parallel", 3, 9),
    Sketcher.Constraint("Parallel", 1, 13),
    Sketcher.Constraint("Parallel", 2, 14),
    Sketcher.Constraint("Parallel", 13, 17),
    Sketcher.Constraint("Parallel", 14, 18),
    Sketcher.Constraint("Parallel", 17, 20),
    Sketcher.Constraint("Parallel", 18, 21),
    Sketcher.Constraint("Parallel", 20, 23),
    Sketcher.Constraint("Parallel", 21, 24),
    Sketcher.Constraint("Parallel", 8, 26),
    Sketcher.Constraint("Parallel", 9, 27),
    Sketcher.Constraint("Parallel", 23, 30),
    Sketcher.Constraint("Parallel", 24, 31),
    Sketcher.Constraint("Parallel", 27, 33),
    Sketcher.Constraint("Parallel", 26, 37),
    Sketcher.Constraint("Parallel", 30, 39),
    Sketcher.Constraint("Parallel", 31, 40),
    Sketcher.Constraint("Parallel", 39, 41),
    Sketcher.Constraint("Parallel", 40, 42),
    Sketcher.Constraint("Horizontal", 7, 2, 8, 2),
    Sketcher.Constraint("Horizontal", 6, 2, 9, 2),
    Sketcher.Constraint("Horizontal", 4, 2, 11, 2),
    Sketcher.Constraint("Horizontal", 15, 2, 16, 2),
    Sketcher.Constraint("Horizontal", 2, 2, 19, 2),
    Sketcher.Constraint("Horizontal", 29, 2, 33, 2),
    Sketcher.Constraint("Horizontal", 28, 2, 35, 2),
    Sketcher.Constraint("Horizontal", 26, 2, 37, 2),
    Sketcher.Constraint("Horizontal", 24, 2, 38, 2),
    Sketcher.Constraint("Horizontal", 32, 2, 42, 2),
    Sketcher.Constraint("Vertical", 3, 2, 6, 2),
    Sketcher.Constraint("Vertical", 9, 2, 12, 2),
    Sketcher.Constraint("Vertical", 1, 2, 13, 2),
    Sketcher.Constraint("Vertical", 0, 2, 14, 2),
    Sketcher.Constraint("Vertical", 2, 2, 15, 2),
    Sketcher.Constraint("Vertical", 18, 2, 19, 2),
    Sketcher.Constraint("Vertical", 17, 2, 20, 2),
    Sketcher.Constraint("Vertical", 14, 2, 22, 2),
    Sketcher.Constraint("Vertical", 13, 2, 23, 2),
    Sketcher.Constraint("Vertical", 12, 2, 25, 2),
    Sketcher.Constraint("Vertical", 8, 2, 26, 2),
    Sketcher.Constraint("Vertical", 25, 2, 27, 2),
    Sketcher.Constraint("Vertical", 11, 2, 28, 2),
    Sketcher.Constraint("Vertical", 23, 2, 30, 2),
    Sketcher.Constraint("Vertical", 22, 2, 31, 2),
    Sketcher.Constraint("Vertical", 6, 2, 33, 2),
    Sketcher.Constraint("Vertical", 5, 2, 34, 2),
    Sketcher.Constraint("Vertical", 19, 2, 38, 2),
    Sketcher.Constraint("Vertical", 20, 2, 39, 2),
    Sketcher.Constraint("Vertical", 39, 2, 41, 2),
    Sketcher.Constraint("Vertical", 38, 2, 42, 2),
    Sketcher.Constraint("Equal", 6, 10),
    Sketcher.Constraint("Angle", 1, Q("-60 deg")),
    Sketcher.Constraint("DistanceY", 0, 2, -1, 1, 40.0),
    Sketcher.Constraint("DistanceY", 7, 2, -1, 1, 240.0),
    Sketcher.Constraint("DistanceY", 14, 2, -1, 1, 440.000001),
    Sketcher.Constraint("DistanceY", 26, 2, 24, 2, 200.0),
    Sketcher.Constraint("DistanceY", 31, 2, 26, 2, 200.0),
    Sketcher.Constraint("DistanceX", 3, 2, 7, 2, 133.454999),
    Sketcher.Constraint("DistanceX", -1, 1, 18, 2, 80.557501),
    Sketcher.Constraint("DistanceY", 39, 2, -1, 1, 2052.6656),
    Sketcher.Constraint("DistanceX", 3, 2, 0, 2, 62.958199),
    Sketcher.Constraint("DistanceX", 4, 2, 2, 2, 329.563199),
    Sketcher.Constraint("DistanceX", 8, 2, 2, 2, 70.4968),
    Sketcher.Constraint("DistanceX", 0, 2, 0, 1, 219.955174),
    Sketcher.Constraint("DistanceX", 16, 1, 16, 2, 199.377057),
    Sketcher.Constraint("DistanceY", 5, 2, 5, 1, 401.005074),
    Sketcher.Constraint("DistanceX", -1, 1, 2, 2, 930.01879),
])
pocket1 = body.newObject("PartDesign::Pocket", "Pocket")
pocket1.Profile = sketch5
pocket1.Type = "ThroughAll"
pocket1.Midplane = True

doc.recompute()
